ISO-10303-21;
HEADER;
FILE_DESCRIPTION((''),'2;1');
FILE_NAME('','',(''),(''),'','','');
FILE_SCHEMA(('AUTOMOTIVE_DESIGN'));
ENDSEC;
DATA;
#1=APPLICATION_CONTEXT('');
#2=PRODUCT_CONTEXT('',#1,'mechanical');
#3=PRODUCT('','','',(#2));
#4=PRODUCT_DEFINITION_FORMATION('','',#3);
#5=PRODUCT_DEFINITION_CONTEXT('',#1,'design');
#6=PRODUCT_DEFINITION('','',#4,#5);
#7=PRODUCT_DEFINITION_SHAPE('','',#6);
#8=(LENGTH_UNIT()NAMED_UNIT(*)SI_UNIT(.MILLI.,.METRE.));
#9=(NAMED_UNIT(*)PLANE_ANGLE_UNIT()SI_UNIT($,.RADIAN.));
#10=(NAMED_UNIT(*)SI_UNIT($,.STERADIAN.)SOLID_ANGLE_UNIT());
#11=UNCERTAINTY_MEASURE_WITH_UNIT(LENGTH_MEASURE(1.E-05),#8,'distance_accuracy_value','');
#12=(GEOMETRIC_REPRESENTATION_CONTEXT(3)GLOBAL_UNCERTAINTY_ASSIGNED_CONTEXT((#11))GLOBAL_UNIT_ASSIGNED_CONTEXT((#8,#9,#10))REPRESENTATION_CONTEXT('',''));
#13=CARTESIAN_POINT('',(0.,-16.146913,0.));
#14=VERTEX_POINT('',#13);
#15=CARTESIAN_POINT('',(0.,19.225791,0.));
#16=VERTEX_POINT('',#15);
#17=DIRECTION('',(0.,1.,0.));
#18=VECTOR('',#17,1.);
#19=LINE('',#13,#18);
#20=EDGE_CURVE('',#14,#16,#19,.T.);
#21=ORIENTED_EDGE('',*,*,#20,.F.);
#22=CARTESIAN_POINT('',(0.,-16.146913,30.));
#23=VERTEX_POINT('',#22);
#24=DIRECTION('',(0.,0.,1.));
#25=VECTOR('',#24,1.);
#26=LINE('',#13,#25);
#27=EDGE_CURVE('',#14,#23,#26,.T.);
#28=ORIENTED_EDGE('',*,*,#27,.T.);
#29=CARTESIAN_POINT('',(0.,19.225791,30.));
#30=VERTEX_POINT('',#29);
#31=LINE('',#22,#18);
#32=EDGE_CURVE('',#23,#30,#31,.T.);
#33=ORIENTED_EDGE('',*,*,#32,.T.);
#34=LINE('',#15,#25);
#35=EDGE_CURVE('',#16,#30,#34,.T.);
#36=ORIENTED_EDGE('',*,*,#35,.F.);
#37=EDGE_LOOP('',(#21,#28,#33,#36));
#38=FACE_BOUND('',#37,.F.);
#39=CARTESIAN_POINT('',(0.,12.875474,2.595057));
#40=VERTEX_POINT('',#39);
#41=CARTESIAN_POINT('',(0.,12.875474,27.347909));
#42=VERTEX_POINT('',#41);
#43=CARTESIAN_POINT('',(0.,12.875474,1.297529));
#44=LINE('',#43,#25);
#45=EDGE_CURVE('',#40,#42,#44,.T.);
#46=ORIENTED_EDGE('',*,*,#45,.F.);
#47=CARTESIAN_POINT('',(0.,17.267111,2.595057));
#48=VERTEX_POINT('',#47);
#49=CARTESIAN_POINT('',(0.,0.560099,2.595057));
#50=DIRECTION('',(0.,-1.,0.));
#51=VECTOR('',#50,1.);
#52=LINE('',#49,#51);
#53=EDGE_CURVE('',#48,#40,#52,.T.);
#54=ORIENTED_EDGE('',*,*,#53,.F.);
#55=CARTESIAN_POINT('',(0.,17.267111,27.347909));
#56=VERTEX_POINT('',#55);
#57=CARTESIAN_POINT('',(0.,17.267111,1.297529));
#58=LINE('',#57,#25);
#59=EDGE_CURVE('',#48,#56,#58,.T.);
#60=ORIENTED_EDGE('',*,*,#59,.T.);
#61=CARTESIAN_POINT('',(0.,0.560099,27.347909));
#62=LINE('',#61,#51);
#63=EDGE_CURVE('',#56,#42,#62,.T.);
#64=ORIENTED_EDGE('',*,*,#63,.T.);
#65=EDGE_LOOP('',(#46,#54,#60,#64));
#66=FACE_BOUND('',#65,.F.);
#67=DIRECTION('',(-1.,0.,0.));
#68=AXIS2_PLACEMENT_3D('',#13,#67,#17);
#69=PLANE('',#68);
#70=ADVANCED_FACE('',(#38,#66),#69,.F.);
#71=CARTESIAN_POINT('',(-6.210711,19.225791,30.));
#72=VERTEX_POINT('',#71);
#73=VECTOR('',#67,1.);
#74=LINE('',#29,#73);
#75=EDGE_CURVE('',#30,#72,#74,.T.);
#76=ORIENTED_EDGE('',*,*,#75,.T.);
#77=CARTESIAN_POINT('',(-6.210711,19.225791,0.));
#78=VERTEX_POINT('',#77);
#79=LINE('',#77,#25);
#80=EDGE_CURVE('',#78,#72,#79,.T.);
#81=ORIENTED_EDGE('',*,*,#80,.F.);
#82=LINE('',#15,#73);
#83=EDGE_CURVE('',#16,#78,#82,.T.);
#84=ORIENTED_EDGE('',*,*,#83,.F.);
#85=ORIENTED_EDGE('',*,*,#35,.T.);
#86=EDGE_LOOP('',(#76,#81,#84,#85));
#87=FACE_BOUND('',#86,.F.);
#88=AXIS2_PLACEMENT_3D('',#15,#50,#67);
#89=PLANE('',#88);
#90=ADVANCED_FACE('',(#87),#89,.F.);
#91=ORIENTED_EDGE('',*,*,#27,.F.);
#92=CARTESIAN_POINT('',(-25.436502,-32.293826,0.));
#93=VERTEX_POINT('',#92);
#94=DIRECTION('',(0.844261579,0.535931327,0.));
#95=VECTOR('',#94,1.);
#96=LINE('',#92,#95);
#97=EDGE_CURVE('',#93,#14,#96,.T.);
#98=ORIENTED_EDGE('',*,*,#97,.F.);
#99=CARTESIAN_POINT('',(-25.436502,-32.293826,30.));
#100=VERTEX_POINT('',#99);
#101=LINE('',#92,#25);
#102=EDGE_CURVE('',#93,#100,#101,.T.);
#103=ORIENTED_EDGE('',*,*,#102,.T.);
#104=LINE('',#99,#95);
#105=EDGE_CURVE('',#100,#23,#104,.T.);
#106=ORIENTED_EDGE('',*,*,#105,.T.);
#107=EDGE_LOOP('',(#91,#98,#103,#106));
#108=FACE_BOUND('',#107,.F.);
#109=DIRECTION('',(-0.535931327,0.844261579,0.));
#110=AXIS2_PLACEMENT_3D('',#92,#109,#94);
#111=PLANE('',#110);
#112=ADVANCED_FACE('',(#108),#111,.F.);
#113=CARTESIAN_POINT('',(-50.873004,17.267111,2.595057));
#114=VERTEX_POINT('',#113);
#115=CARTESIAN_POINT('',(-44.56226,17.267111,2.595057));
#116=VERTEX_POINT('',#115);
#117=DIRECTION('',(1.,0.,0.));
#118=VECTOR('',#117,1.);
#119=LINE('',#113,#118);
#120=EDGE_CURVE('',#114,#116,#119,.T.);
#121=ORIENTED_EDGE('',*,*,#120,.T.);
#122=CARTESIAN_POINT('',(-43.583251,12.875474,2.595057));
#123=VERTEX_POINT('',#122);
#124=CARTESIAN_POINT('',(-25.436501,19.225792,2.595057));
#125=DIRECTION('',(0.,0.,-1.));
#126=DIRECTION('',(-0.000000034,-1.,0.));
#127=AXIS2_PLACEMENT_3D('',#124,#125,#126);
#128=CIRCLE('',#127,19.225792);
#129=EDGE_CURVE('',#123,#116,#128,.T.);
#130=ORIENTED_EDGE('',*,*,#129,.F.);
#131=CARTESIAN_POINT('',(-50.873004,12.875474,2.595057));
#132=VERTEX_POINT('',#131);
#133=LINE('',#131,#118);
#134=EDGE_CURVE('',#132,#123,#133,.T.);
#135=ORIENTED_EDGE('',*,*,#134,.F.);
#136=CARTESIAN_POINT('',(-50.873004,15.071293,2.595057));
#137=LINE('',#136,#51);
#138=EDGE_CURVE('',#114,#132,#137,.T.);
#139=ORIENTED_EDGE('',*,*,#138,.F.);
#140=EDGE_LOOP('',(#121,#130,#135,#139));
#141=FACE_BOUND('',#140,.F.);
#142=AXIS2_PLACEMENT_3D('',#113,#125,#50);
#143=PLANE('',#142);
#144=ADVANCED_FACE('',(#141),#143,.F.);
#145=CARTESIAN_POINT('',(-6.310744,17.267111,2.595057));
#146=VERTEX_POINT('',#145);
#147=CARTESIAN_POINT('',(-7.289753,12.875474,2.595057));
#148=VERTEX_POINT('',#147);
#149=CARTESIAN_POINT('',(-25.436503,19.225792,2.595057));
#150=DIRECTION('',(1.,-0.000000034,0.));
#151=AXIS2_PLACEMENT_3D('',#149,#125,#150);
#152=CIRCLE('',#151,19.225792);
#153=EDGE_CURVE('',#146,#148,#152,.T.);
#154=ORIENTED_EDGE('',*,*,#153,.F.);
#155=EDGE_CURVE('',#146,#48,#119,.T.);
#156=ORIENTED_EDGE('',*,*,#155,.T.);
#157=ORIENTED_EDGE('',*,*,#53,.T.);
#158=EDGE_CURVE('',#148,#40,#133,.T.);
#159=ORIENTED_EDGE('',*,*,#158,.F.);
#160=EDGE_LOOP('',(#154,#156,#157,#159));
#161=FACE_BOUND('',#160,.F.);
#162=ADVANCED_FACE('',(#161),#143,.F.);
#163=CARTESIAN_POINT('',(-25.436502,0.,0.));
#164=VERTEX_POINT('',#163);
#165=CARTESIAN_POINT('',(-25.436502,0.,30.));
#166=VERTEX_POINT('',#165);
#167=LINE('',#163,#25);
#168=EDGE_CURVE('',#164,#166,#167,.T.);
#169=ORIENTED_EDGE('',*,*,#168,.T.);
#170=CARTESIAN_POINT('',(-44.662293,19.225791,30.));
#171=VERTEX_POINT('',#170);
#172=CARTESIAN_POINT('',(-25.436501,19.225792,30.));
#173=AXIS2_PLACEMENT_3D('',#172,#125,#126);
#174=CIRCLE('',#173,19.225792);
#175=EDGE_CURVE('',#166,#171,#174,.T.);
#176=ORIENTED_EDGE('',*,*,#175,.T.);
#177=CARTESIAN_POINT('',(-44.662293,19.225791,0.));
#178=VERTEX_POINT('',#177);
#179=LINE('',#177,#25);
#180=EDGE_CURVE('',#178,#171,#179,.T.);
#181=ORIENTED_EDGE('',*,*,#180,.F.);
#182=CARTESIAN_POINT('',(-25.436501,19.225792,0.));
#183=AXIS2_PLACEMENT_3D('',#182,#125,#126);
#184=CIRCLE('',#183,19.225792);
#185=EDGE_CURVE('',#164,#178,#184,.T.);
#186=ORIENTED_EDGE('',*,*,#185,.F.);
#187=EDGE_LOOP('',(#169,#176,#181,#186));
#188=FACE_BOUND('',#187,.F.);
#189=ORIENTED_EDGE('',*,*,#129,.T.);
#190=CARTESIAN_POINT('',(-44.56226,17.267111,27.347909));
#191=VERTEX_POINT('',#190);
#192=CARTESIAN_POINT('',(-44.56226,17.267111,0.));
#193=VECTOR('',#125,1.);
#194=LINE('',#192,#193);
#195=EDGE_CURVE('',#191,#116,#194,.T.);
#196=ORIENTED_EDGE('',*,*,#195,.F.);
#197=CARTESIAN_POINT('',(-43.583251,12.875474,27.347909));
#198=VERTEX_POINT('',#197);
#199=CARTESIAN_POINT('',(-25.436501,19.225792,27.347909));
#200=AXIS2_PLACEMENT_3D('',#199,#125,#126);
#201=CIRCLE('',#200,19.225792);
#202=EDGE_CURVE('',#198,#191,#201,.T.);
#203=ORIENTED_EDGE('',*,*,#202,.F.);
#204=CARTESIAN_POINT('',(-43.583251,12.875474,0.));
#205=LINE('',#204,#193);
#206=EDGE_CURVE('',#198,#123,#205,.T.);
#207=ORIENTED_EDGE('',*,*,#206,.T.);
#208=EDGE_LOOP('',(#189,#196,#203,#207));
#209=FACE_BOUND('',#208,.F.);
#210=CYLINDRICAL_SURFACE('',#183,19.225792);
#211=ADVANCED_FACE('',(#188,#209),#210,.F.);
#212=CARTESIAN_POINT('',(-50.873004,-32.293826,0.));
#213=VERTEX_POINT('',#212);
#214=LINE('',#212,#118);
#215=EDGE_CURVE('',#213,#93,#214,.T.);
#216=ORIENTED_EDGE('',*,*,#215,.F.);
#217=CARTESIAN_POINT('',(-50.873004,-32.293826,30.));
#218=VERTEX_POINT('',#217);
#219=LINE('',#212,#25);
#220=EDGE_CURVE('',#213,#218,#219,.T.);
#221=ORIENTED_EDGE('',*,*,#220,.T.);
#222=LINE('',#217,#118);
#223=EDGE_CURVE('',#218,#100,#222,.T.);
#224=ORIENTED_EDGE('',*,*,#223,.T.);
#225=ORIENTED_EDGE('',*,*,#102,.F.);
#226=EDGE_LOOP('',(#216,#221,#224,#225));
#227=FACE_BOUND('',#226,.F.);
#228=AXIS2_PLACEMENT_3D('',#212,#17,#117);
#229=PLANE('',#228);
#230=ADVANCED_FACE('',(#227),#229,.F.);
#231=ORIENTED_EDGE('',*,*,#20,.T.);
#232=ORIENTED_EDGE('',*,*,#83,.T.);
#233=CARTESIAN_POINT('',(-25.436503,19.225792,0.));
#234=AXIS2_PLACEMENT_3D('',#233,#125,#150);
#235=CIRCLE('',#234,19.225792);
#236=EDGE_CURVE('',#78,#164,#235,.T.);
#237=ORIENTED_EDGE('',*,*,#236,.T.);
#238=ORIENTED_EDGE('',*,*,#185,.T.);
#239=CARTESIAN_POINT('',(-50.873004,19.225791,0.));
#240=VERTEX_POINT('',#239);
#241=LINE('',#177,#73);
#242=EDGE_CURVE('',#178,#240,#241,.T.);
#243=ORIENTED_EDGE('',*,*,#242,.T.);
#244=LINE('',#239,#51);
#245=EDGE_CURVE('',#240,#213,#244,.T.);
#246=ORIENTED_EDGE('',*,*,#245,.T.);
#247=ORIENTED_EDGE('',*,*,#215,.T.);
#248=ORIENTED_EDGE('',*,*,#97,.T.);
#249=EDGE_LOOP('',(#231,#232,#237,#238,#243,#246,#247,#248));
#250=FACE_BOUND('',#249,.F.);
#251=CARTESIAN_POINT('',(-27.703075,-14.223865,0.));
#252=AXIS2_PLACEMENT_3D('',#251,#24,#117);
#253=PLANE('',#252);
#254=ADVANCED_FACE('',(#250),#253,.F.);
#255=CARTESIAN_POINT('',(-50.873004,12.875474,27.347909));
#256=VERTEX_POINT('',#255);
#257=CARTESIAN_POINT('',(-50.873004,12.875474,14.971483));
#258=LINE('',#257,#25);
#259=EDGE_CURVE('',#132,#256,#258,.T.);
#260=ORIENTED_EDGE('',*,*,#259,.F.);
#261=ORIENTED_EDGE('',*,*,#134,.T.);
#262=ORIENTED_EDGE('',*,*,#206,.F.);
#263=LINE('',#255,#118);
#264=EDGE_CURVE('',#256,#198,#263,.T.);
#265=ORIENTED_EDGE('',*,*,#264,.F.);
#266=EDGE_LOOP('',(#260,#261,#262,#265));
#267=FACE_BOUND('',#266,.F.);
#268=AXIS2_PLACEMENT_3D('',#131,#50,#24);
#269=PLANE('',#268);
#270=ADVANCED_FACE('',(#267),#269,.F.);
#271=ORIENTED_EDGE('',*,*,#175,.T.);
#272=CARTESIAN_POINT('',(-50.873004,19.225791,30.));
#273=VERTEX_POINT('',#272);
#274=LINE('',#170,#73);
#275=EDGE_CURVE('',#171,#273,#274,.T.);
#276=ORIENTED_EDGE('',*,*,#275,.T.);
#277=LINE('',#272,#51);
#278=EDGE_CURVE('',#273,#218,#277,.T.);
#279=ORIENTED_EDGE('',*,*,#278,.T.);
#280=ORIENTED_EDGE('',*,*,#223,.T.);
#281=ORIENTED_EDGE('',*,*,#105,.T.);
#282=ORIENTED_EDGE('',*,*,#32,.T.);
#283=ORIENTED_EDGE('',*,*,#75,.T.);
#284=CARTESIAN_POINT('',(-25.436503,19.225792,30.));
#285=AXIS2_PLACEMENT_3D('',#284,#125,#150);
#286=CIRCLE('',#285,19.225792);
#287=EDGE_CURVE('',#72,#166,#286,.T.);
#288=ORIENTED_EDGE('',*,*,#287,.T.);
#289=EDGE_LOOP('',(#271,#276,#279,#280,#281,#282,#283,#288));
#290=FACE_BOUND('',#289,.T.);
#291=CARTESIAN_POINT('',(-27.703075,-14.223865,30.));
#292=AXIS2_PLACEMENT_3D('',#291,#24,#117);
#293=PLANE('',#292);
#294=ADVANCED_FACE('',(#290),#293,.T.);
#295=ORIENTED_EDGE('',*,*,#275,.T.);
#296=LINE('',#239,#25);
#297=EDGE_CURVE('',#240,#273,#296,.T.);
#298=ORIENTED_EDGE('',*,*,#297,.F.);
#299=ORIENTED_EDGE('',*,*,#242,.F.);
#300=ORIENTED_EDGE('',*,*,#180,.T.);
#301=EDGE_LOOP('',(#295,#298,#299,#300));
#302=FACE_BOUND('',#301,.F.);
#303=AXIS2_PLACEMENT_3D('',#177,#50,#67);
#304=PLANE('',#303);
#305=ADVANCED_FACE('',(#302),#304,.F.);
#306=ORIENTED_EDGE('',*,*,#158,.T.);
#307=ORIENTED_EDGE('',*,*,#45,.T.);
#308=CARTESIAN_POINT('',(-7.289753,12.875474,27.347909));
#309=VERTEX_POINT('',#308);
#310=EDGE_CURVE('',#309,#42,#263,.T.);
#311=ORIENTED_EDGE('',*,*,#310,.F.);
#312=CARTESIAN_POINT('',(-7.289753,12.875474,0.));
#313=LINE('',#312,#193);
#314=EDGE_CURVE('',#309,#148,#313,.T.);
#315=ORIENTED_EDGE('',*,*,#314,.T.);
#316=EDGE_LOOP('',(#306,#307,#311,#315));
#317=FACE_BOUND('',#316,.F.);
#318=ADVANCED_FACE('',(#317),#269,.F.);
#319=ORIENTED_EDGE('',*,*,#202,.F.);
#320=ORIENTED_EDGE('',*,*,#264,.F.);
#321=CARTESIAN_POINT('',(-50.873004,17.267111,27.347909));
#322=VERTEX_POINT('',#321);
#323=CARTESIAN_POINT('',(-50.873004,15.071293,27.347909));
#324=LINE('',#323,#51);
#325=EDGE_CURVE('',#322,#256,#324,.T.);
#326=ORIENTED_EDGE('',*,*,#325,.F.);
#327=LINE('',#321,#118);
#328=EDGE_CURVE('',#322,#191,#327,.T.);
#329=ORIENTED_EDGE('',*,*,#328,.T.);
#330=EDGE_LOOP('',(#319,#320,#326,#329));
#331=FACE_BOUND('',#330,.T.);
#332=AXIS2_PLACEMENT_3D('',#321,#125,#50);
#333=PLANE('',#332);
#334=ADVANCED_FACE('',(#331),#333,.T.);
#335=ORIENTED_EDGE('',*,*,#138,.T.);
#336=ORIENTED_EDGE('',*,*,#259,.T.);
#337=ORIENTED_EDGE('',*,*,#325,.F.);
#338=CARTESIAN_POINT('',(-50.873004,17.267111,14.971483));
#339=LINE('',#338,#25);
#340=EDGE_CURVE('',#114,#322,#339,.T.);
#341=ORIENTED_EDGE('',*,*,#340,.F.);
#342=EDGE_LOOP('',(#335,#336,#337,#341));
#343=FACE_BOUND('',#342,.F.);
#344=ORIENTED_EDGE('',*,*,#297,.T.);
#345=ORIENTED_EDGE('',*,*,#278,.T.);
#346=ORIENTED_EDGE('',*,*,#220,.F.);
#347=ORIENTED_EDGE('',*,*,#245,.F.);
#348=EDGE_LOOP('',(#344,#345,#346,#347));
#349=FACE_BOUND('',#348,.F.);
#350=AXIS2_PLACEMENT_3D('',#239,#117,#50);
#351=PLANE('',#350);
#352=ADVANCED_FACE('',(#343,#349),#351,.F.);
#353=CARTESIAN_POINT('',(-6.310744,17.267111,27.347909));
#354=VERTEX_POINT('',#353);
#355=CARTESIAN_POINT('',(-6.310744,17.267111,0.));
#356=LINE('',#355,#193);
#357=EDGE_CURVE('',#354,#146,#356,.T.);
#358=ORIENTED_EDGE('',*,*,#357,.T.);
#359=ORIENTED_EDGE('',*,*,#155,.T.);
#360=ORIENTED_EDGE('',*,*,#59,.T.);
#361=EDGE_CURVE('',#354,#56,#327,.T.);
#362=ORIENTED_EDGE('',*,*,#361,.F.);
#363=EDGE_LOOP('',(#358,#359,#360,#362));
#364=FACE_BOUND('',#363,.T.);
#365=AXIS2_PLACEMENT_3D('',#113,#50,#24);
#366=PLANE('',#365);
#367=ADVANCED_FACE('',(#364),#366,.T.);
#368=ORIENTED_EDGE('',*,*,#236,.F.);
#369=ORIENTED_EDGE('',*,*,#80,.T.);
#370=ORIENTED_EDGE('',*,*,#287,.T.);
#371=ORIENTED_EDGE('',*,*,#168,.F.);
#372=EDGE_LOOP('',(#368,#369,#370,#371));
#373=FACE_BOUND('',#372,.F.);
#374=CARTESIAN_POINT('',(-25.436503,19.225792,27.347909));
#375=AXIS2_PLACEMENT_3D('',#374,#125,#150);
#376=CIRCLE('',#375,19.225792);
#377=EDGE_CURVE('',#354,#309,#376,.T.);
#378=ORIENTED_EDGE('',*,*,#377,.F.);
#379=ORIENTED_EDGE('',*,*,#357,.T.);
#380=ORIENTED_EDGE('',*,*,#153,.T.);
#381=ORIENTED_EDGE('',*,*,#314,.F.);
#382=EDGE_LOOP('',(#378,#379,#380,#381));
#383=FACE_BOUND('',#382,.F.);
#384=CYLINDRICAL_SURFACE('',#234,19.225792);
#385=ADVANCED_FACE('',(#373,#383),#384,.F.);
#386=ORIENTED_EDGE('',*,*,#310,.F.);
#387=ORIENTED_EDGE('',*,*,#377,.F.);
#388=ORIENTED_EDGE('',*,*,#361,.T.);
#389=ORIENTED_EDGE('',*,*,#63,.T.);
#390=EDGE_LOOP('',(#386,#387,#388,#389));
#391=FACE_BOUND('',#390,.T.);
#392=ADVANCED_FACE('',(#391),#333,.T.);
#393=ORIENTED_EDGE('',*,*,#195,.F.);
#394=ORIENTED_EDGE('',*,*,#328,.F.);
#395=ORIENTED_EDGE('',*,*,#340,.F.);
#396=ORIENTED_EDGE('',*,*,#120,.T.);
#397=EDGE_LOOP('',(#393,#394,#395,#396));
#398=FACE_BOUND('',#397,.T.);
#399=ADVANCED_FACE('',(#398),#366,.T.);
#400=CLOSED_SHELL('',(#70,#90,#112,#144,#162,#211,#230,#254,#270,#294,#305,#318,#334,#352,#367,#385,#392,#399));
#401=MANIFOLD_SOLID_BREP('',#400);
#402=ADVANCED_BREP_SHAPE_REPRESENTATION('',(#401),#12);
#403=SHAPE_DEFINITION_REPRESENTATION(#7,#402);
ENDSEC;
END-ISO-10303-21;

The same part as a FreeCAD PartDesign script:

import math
import FreeCAD as App
import Part
import Sketcher

V = App.Vector
Q = App.Units.Quantity

doc = App.newDocument("Part")
body = doc.addObject("PartDesign::Body", "Body")

sketch1 = doc.addObject("Sketcher::SketchObject", "Sketch")
body.addObject(sketch1)
sketch1.AttachmentSupport = (doc.XY_Plane, [""])
sketch1.MapMode = "FlatFace"
sketch1.addGeometry([
    Part.LineSegment(V(0, -16, 0), V(0, 19, 0)),
    Part.LineSegment(V(0, 19, 0), V(-6, 19, 0)),
    Part.ArcOfCircle(Part.Circle(V(-25, 19, 0), V(0, 0, 1), 19), math.radians(-90), math.radians(0)),
    Part.ArcOfCircle(Part.Circle(V(-25, 19, 0), V(0, 0, 1), 19), math.radians(-180), math.radians(-90)),
    Part.LineSegment(V(-45, 19, 0), V(-51, 19, 0)),
    Part.LineSegment(V(-51, 19, 0), V(-51, -32, 0)),
    Part.LineSegment(V(-51, -32, 0), V(-25, -32, 0)),
    Part.LineSegment(V(-25, -32, 0), V(0, -16, 0)),
], False)
sketch1.addConstraint([
    Sketcher.Constraint("Coincident", 0, 2, 1, 1),
    Sketcher.Constraint("Coincident", 1, 2, 2, 2),
    Sketcher.Constraint("Tangent", 2, 1, 3, 2),
    Sketcher.Constraint("Coincident", 3, 1, 4, 1),
    Sketcher.Constraint("Coincident", 4, 2, 5, 1),
    Sketcher.Constraint("Coincident", 5, 2, 6, 1),
    Sketcher.Constraint("Coincident", 6, 2, 7, 1),
    Sketcher.Constraint("Coincident", 7, 2, 0, 1),
    Sketcher.Constraint("Vertical", 0),
    Sketcher.Constraint("Horizontal", 1),
    Sketcher.Constraint("Horizontal", 4),
    Sketcher.Constraint("Vertical", 5),
    Sketcher.Constraint("Horizontal", 6),
    Sketcher.Constraint("Equal", 2, 3),
    Sketcher.Constraint("PointOnObject", 0, 2, -2),
    Sketcher.Constraint("PointOnObject", 2, 1, -1),
    Sketcher.Constraint("Horizontal", 3, 3, 0, 2),
    Sketcher.Constraint("Horizontal", 1, 2, 3, 1),
    Sketcher.Constraint("Vertical", 3, 3, 2, 1),
    Sketcher.Constraint("Vertical", 2, 1, 6, 2),
    Sketcher.Constraint("Equal", 1, 4),
    Sketcher.Constraint("Radius", 2, Q("19.225792 mm")),
    Sketcher.Constraint("DistanceX", 1, 2, 1, 1, Q("6.210711 mm")),
    Sketcher.Constraint("DistanceY", 0, 1, 0, 2, Q("35.372704 mm")),
    Sketcher.Constraint("DistanceY", 5, 2, 5, 1, Q("51.519617 mm")),
])
pad1 = doc.addObject("PartDesign::Pad", "Pad")
body.addObject(pad1)
pad1.Profile = sketch1
pad1.Length = 30

sketch2 = doc.addObject("Sketcher::SketchObject", "Sketch001")
body.addObject(sketch2)
sketch2.AttachmentSupport = (doc.YZ_Plane, [""])
sketch2.MapMode = "FlatFace"
sketch2.AttachmentOffset = App.Placement(V(0, 0, -50.873004), App.Rotation())
sketch2.addGeometry([
    Part.LineSegment(V(17.3, 27.3, 0), V(17.3, 2.6, 0)),
    Part.LineSegment(V(17.3, 2.6, 0), V(12.9, 2.6, 0)),
    Part.LineSegment(V(12.9, 2.6, 0), V(12.9, 27.3, 0)),
    Part.LineSegment(V(12.9, 27.3, 0), V(17.3, 27.3, 0)),
], False)
sketch2.addConstraint([
    Sketcher.Constraint("Coincident", 0, 2, 1, 1),
    Sketcher.Constraint("Coincident", 1, 2, 2, 1),
    Sketcher.Constraint("Coincident", 2, 2, 3, 1),
    Sketcher.Constraint("Coincident", 3, 2, 0, 1),
    Sketcher.Constraint("Vertical", 0),
    Sketcher.Constraint("Horizontal", 1),
    Sketcher.Constraint("Vertical", 2),
    Sketcher.Constraint("Horizontal", 3),
    Sketcher.Constraint("DistanceX", 1, 2, 1, 1, Q("4.391637 mm")),
    Sketcher.Constraint("DistanceY", 0, 2, 0, 1, Q("24.752852 mm")),
    Sketcher.Constraint("DistanceX", -1, 1, 0, 2, Q("17.267111 mm")),
    Sketcher.Constraint("DistanceY", -1, 1, 2, 2, Q("27.347909 mm")),
])
pocket1 = doc.addObject("PartDesign::Pocket", "Pocket")
body.addObject(pocket1)
pocket1.Profile = sketch2
pocket1.Type = "ThroughAll"
pocket1.Reversed = True

doc.recompute()
